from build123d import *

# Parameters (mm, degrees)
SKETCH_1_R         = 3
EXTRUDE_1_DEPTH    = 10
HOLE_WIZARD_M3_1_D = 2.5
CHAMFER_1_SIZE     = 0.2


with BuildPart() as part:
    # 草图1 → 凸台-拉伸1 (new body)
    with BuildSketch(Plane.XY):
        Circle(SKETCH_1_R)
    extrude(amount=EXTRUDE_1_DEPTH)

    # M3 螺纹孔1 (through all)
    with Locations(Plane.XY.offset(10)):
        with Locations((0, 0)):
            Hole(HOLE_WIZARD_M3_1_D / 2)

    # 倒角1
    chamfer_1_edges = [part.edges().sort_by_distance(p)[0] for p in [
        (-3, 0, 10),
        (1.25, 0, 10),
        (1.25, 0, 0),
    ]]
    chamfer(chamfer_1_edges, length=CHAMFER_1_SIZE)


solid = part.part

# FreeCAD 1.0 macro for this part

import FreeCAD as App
import Part
import Sketcher
from FreeCAD import Vector


def edges_at(feature, points):
    """Names of the edges that pass closest to the given points."""
    edges = feature.Shape.Edges
    near = lambda p: min(range(len(edges)), key=lambda i: edges[i].distToShape(Part.Vertex(*p))[0])
    return sorted({f"Edge{near(p) + 1}" for p in points})

doc = App.newDocument("Part")
body = doc.addObject("PartDesign::Body", "Body")

# Sketch on XY plane
sketch1 = body.newObject("Sketcher::SketchObject", "Sketch")
sketch1.AttachmentSupport = (doc.getObject("XY_Plane"), [""])
sketch1.MapMode = "FlatFace"
sketch1.addGeometry(Part.Circle(Vector(0, 0, 0), Vector(0, 0, 1), 3), False)
sketch1.addConstraint(Sketcher.Constraint("Coincident", 0, 3, -1, 1))
sketch1.addConstraint(Sketcher.Constraint("Diameter", 0, 6.0))
pad1 = body.newObject("PartDesign::Pad", "Pad")
pad1.Profile = sketch1
pad1.Length = 10

# Sketch on XY plane
sketch2 = body.newObject("Sketcher::SketchObject", "Sketch001")
sketch2.AttachmentSupport = (doc.getObject("XY_Plane"), [""])
sketch2.MapMode = "FlatFace"
sketch2.AttachmentOffset = App.Placement(Vector(0, 0, 10), App.Rotation())
sketch2.addGeometry(Part.Circle(Vector(0, 0, 0), Vector(0, 0, 1), 1.25), False)
sketch2.addConstraint(Sketcher.Constraint("Coincident", 0, 3, -1, 1))
sketch2.addConstraint(Sketcher.Constraint("Diameter", 0, 2.5))
doc.recompute()
hole = body.newObject("PartDesign::Hole", "Hole")
hole.Profile = sketch2
hole.ThreadType = "None"
hole.Diameter = 2.5
hole.DepthType = "ThroughAll"
doc.recompute()

chamfer = body.newObject("PartDesign::Chamfer", "Chamfer")
chamfer.Base = (hole, edges_at(hole, [(-3, 0, 10), (1.25, 0, 10), (1.25, 0, 0)]))
chamfer.Size = 0.2

doc.recompute()
